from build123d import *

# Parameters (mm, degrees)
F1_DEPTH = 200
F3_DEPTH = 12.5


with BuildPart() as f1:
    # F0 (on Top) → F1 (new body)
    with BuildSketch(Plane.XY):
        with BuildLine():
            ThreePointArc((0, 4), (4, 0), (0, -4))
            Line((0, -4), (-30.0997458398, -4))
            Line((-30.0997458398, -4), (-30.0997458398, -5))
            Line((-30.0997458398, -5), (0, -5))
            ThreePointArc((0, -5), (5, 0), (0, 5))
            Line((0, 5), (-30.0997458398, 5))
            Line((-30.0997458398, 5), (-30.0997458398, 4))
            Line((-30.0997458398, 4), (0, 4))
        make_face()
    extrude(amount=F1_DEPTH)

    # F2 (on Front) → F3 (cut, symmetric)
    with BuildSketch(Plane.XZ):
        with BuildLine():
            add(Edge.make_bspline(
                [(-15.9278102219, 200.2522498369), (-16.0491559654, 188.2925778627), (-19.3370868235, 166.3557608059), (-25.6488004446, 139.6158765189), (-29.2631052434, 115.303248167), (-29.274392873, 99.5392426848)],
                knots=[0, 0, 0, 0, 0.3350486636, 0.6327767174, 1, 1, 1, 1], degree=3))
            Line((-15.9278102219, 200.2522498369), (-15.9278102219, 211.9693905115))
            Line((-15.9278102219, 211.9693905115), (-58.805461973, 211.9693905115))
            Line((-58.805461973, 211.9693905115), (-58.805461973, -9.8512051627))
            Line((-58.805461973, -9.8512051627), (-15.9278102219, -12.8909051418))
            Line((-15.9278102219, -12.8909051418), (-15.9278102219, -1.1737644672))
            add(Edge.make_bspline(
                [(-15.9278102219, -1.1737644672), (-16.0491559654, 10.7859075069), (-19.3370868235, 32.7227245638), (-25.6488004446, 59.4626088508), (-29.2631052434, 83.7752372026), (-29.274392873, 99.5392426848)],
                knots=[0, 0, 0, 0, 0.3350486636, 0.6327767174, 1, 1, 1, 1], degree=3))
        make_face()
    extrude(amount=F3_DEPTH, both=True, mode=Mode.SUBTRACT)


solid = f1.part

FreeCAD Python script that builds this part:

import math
import FreeCAD as App
import Part
import Sketcher

V = App.Vector

doc = App.newDocument("Part")
body = doc.addObject("PartDesign::Body", "Body")

# Sketch on XY plane
sketch1 = body.newObject("Sketcher::SketchObject", "Sketch")
sketch1.AttachmentSupport = (doc.getObject("XY_Plane"), [""])
sketch1.MapMode = "FlatFace"
sketch1.addGeometry([
    Part.ArcOfCircle(Part.Circle(V(0, 0, 0), V(0, 0, 1), 4), math.radians(-90), math.radians(90)),  # 0
    Part.LineSegment(V(0, -4, 0), V(-30.1, -4, 0)),  # 1
    Part.LineSegment(V(-30.1, -4, 0), V(-30.1, -5, 0)),  # 2
    Part.LineSegment(V(-30.1, -5, 0), V(0, -5, 0)),  # 3
    Part.ArcOfCircle(Part.Circle(V(0, 0, 0), V(0, 0, 1), 5), math.radians(-90), math.radians(90)),  # 4
    Part.LineSegment(V(0, 5, 0), V(-30.1, 5, 0)),  # 5
    Part.LineSegment(V(-30.1, 5, 0), V(-30.1, 4, 0)),  # 6
    Part.LineSegment(V(-30.1, 4, 0), V(0, 4, 0)),  # 7
], False)
sketch1.addConstraint([
    Sketcher.Constraint("Tangent", 0, 1, 1, 1),
    Sketcher.Constraint("Coincident", 1, 2, 2, 1),
    Sketcher.Constraint("Coincident", 2, 2, 3, 1),
    Sketcher.Constraint("Tangent", 3, 2, 4, 1),
    Sketcher.Constraint("Tangent", 4, 2, 5, 1),
    Sketcher.Constraint("Coincident", 5, 2, 6, 1),
    Sketcher.Constraint("Coincident", 6, 2, 7, 1),
    Sketcher.Constraint("Tangent", 7, 2, 0, 2),
    Sketcher.Constraint("Horizontal", 1),
    Sketcher.Constraint("Vertical", 2),
    Sketcher.Constraint("Horizontal", 3),
    Sketcher.Constraint("Horizontal", 5),
    Sketcher.Constraint("Vertical", 6),
    Sketcher.Constraint("Horizontal", 7),
    Sketcher.Constraint("Coincident", 0, 3, -1, 1),
    Sketcher.Constraint("Coincident", 4, 3, -1, 1),
    Sketcher.Constraint("Vertical", 2, 2, 5, 2),
    Sketcher.Constraint("Radius", 0, 4.0),
    Sketcher.Constraint("Radius", 4, 5.0),
    Sketcher.Constraint("DistanceX", 1, 2, 1, 1, 30.099746),
])
pad1 = body.newObject("PartDesign::Pad", "Pad")
pad1.Profile = sketch1
pad1.Length = 200

# Sketch on XZ plane
sketch2 = body.newObject("Sketcher::SketchObject", "Sketch001")
sketch2.AttachmentSupport = (doc.getObject("XZ_Plane"), [""])
sketch2.MapMode = "FlatFace"
sketch2.addGeometry([
    Part.BSplineCurve([V(-15.92781, 200.25225, 0), V(-16.049156, 188.292578, 0), V(-19.337087, 166.355761, 0), V(-25.6488, 139.615877, 0), V(-29.263105, 115.303248, 0), V(-29.274393, 99.539243, 0)], [4, 1, 1, 4], [0, 0.335048664, 0.632776717, 1], False, 3, [1, 1, 1, 1, 1, 1], False),  # 0
    Part.LineSegment(V(-15.92781, 200.25225, 0), V(-15.92781, 211.969391, 0)),  # 1
    Part.LineSegment(V(-15.92781, 211.969391, 0), V(-58.805462, 211.969391, 0)),  # 2
    Part.LineSegment(V(-58.805462, 211.969391, 0), V(-58.805462, -9.851205, 0)),  # 3
    Part.LineSegment(V(-58.805462, -9.851205, 0), V(-15.92781, -12.890905, 0)),  # 4
    Part.LineSegment(V(-15.92781, -12.890905, 0), V(-15.92781, -1.173764, 0)),  # 5
    Part.BSplineCurve([V(-15.92781, -1.173764, 0), V(-16.049156, 10.785908, 0), V(-19.337087, 32.722725, 0), V(-25.6488, 59.462609, 0), V(-29.263105, 83.775237, 0), V(-29.274393, 99.539243, 0)], [4, 1, 1, 4], [0, 0.335048664, 0.632776717, 1], False, 3, [1, 1, 1, 1, 1, 1], False),  # 6
], False)
sketch2.addConstraint([
    Sketcher.Constraint("Block", 0),
    Sketcher.Constraint("Block", 6),
    Sketcher.Constraint("Coincident", 0, 1, 1, 1),
    Sketcher.Constraint("Coincident", 1, 2, 2, 1),
    Sketcher.Constraint("Coincident", 2, 2, 3, 1),
    Sketcher.Constraint("Coincident", 3, 2, 4, 1),
    Sketcher.Constraint("Coincident", 4, 2, 5, 1),
    Sketcher.Constraint("Coincident", 5, 2, 6, 1),
    Sketcher.Constraint("Vertical", 1),
    Sketcher.Constraint("Horizontal", 2),
    Sketcher.Constraint("Vertical", 3),
    Sketcher.Constraint("Vertical", 5),
    Sketcher.Constraint("Equal", 1, 5),
    Sketcher.Constraint("DistanceX", 2, 2, 2, 1, 42.877652),
    Sketcher.Constraint("DistanceY", 1, 1, 1, 2, 11.717141),
    Sketcher.Constraint("DistanceY", 4, 2, 3, 2, 3.0397),
])
pocket1 = body.newObject("PartDesign::Pocket", "Pocket")
pocket1.Profile = sketch2
pocket1.Length = 25
pocket1.Midplane = True

doc.recompute()
